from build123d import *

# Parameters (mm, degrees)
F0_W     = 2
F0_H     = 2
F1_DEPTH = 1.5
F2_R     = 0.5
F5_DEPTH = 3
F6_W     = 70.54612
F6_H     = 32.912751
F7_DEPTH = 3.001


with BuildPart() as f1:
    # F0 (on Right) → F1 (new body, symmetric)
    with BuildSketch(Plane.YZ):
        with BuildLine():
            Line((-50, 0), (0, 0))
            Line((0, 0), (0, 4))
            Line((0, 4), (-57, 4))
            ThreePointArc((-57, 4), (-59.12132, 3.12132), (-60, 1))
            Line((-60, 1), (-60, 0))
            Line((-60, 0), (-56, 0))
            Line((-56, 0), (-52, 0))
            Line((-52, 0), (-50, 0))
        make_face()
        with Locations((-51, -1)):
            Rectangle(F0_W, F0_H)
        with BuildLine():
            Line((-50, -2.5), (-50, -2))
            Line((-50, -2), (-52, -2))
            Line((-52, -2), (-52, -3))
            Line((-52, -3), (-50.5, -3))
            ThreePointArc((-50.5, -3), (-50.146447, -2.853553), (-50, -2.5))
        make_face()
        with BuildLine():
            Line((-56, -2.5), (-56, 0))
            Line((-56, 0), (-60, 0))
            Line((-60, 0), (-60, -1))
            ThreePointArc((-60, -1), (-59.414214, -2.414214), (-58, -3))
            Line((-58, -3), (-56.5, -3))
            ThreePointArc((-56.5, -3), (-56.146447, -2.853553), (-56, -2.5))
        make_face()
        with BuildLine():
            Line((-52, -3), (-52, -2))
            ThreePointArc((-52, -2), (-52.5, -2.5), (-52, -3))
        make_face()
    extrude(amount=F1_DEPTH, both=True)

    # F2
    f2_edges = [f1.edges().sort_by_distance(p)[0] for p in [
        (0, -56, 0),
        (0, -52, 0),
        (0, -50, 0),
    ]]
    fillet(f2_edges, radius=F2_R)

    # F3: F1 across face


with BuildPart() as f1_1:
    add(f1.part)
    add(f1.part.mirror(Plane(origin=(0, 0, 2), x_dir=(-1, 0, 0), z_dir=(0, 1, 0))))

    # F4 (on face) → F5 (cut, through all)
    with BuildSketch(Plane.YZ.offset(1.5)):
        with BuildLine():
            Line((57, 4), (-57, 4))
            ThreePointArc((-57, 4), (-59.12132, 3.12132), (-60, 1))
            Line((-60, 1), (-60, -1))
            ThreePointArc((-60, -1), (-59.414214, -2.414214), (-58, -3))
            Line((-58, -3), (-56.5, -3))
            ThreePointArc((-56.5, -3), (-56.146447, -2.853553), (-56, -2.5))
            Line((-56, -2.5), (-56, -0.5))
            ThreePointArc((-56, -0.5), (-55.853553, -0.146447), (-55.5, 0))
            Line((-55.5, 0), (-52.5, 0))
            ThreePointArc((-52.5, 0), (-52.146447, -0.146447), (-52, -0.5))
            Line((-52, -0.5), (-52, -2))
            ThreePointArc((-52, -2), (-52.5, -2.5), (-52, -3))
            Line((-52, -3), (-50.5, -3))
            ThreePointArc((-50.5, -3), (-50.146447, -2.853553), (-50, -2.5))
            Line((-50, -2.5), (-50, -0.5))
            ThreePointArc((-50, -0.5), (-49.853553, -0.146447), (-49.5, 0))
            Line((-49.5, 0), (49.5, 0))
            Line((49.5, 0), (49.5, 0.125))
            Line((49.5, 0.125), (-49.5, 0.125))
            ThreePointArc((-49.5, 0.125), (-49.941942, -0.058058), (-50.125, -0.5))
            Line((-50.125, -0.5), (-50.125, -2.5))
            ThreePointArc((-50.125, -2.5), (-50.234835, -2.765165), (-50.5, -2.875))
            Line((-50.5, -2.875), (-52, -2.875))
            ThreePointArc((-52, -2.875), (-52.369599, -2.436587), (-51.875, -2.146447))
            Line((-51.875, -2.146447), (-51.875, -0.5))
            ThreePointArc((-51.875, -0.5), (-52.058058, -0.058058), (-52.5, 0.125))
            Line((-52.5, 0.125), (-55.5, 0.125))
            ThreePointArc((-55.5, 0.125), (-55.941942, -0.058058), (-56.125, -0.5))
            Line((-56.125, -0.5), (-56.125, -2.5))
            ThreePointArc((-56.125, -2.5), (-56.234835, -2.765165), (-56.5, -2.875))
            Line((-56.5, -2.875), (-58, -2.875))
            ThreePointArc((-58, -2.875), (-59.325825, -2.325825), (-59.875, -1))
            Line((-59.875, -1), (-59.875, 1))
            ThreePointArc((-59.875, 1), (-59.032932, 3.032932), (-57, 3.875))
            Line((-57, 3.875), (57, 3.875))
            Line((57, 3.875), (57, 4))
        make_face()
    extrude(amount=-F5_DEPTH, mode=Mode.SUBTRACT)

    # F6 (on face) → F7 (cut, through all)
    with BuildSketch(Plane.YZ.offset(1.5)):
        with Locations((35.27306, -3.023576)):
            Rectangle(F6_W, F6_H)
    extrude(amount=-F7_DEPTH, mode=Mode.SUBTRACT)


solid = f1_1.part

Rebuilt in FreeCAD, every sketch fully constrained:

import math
import FreeCAD as App
import Part
import Sketcher

V = App.Vector
Q = App.Units.Quantity


def edges_at(feature, points):
    """Names of the edges that pass closest to the given points."""
    edges = feature.Shape.Edges
    near = lambda p: min(range(len(edges)), key=lambda i: edges[i].distToShape(Part.Vertex(*p))[0])
    return sorted({f"Edge{near(p) + 1}" for p in points})

doc = App.newDocument("Part")
body = doc.addObject("PartDesign::Body", "Body")

sketch1 = body.newObject("Sketcher::SketchObject", "Sketch")
sketch1.AttachmentSupport = (doc.getObject("YZ_Plane"), [""])
sketch1.MapMode = "FlatFace"
sketch1.addGeometry(Part.LineSegment(V(0, 0, 0), V(0, 4, 0)), False)
sketch1.addGeometry(Part.LineSegment(V(0, 4, 0), V(-57, 4, 0)), False)
sketch1.addGeometry(Part.ArcOfCircle(Part.Circle(V(-57, 1, 0), V(0, 0, 1), 3), math.radians(90), math.radians(180)), False)
sketch1.addGeometry(Part.LineSegment(V(-60, 1, 0), V(-60, -1, 0)), False)
sketch1.addGeometry(Part.ArcOfCircle(Part.Circle(V(-58, -1, 0), V(0, 0, 1), 2), math.radians(180), math.radians(270)), False)
sketch1.addGeometry(Part.LineSegment(V(-58, -3, 0), V(-56.5, -3, 0)), False)
sketch1.addGeometry(Part.ArcOfCircle(Part.Circle(V(-56.5, -2.5, 0), V(0, 0, 1), 0.5), math.radians(-90), math.radians(0)), False)
sketch1.addGeometry(Part.LineSegment(V(-56, -2.5, 0), V(-56, 0, 0)), False)
sketch1.addGeometry(Part.LineSegment(V(-56, 0, 0), V(-52, 0, 0)), False)
sketch1.addGeometry(Part.LineSegment(V(-52, 0, 0), V(-52, -2, 0)), False)
sketch1.addGeometry(Part.ArcOfCircle(Part.Circle(V(-52, -2.5, 0), V(0, 0, 1), 0.5), math.radians(90), math.radians(270)), False)
sketch1.addGeometry(Part.LineSegment(V(-52, -3, 0), V(-50.5, -3, 0)), False)
sketch1.addGeometry(Part.ArcOfCircle(Part.Circle(V(-50.5, -2.5, 0), V(0, 0, 1), 0.5), math.radians(-90), math.radians(0)), False)
sketch1.addGeometry(Part.LineSegment(V(-50, -2.5, 0), V(-50, 0, 0)), False)
sketch1.addGeometry(Part.LineSegment(V(-50, 0, 0), V(0, 0, 0)), False)
sketch1.addConstraint(Sketcher.Constraint("Coincident", 0, 2, 1, 1))
sketch1.addConstraint(Sketcher.Constraint("Tangent", 1, 2, 2, 1))
sketch1.addConstraint(Sketcher.Constraint("Tangent", 2, 2, 3, 1))
sketch1.addConstraint(Sketcher.Constraint("Tangent", 3, 2, 4, 1))
sketch1.addConstraint(Sketcher.Constraint("Tangent", 4, 2, 5, 1))
sketch1.addConstraint(Sketcher.Constraint("Coincident", 5, 2, 6, 1))
sketch1.addConstraint(Sketcher.Constraint("Coincident", 6, 2, 7, 1))
sketch1.addConstraint(Sketcher.Constraint("Coincident", 7, 2, 8, 1))
sketch1.addConstraint(Sketcher.Constraint("Coincident", 8, 2, 9, 1))
sketch1.addConstraint(Sketcher.Constraint("Coincident", 9, 2, 10, 1))
sketch1.addConstraint(Sketcher.Constraint("Tangent", 10, 2, 11, 1))
sketch1.addConstraint(Sketcher.Constraint("Coincident", 11, 2, 12, 1))
sketch1.addConstraint(Sketcher.Constraint("Coincident", 12, 2, 13, 1))
sketch1.addConstraint(Sketcher.Constraint("Coincident", 13, 2, 14, 1))
sketch1.addConstraint(Sketcher.Constraint("Coincident", 14, 2, 0, 1))
sketch1.addConstraint(Sketcher.Constraint("Vertical", 0))
sketch1.addConstraint(Sketcher.Constraint("Horizontal", 1))
sketch1.addConstraint(Sketcher.Constraint("Vertical", 3))
sketch1.addConstraint(Sketcher.Constraint("Horizontal", 5))
sketch1.addConstraint(Sketcher.Constraint("Vertical", 7))
sketch1.addConstraint(Sketcher.Constraint("Horizontal", 8))
sketch1.addConstraint(Sketcher.Constraint("Vertical", 9))
sketch1.addConstraint(Sketcher.Constraint("Horizontal", 11))
sketch1.addConstraint(Sketcher.Constraint("Vertical", 13))
sketch1.addConstraint(Sketcher.Constraint("Horizontal", 14))
sketch1.addConstraint(Sketcher.Constraint("Coincident", 14, 2, -1, 1))
sketch1.addConstraint(Sketcher.Constraint("Equal", 6, 10))
sketch1.addConstraint(Sketcher.Constraint("Equal", 10, 12))
sketch1.addConstraint(Sketcher.Constraint("PointOnObject", 7, 2, -1))
sketch1.addConstraint(Sketcher.Constraint("Horizontal", 6, 3, 10, 3))
sketch1.addConstraint(Sketcher.Constraint("Horizontal", 12, 3, 6, 2))
sketch1.addConstraint(Sketcher.Constraint("Horizontal", 6, 2, 12, 2))
sketch1.addConstraint(Sketcher.Constraint("Vertical", 6, 3, 5, 2))
sketch1.addConstraint(Sketcher.Constraint("Vertical", 10, 3, 8, 2))
sketch1.addConstraint(Sketcher.Constraint("Vertical", 12, 3, 11, 2))
sketch1.addConstraint(Sketcher.Constraint("Equal", 5, 11))
sketch1.addConstraint(Sketcher.Constraint("Equal", 8, 0))
sketch1.addConstraint(Sketcher.Constraint("Equal", 3, 9))
sketch1.addConstraint(Sketcher.Constraint("Radius", 2, Q("3.000001 mm")))
sketch1.addConstraint(Sketcher.Constraint("Radius", 4, Q("1.999999 mm")))
sketch1.addConstraint(Sketcher.Constraint("Radius", 6, Q("0.500001 mm")))
sketch1.addConstraint(Sketcher.Constraint("DistanceX", 1, 2, 1, 1, Q("57 mm")))
sketch1.addConstraint(Sketcher.Constraint("DistanceX", 14, 1, 14, 2, Q("50 mm")))
sketch1.addConstraint(Sketcher.Constraint("DistanceY", 3, 2, 3, 1, Q("2 mm")))
pad1 = body.newObject("PartDesign::Pad", "Pad")
pad1.Profile = sketch1
pad1.Length = 3
pad1.Midplane = True
doc.recompute()

fillet = body.newObject("PartDesign::Fillet", "Fillet")
fillet.Base = (pad1, edges_at(pad1, [(0, -56, 0), (0, -52, 0), (0, -50, 0)]))
fillet.Radius = 0.5
body2 = doc.addObject("PartDesign::Body", "Body001")
doc.recompute()

body2.BaseFeature = body
doc.recompute()

mirroring = doc.addObject("Part::Mirroring", "Mirroring")
mirroring.Source = body
mirroring.Base = V(0, 0, 2)
mirroring.Normal = V(0, 1, 0)
body3 = doc.addObject("PartDesign::Body", "Body002")
body3.BaseFeature = mirroring
boolean = body2.newObject("PartDesign::Boolean", "Boolean")
boolean.Type = "Fuse"
boolean.addObjects([body3])
doc.recompute()

sketch2 = body2.newObject("Sketcher::SketchObject", "Sketch001")
sketch2.AttachmentSupport = (doc.getObject("YZ_Plane001"), [""])
sketch2.MapMode = "FlatFace"
sketch2.AttachmentOffset = App.Placement(V(0, 0, 1.5), App.Rotation())
sketch2.addGeometry(Part.LineSegment(V(57, 4, 0), V(-57, 4, 0)), False)
sketch2.addGeometry(Part.ArcOfCircle(Part.Circle(V(-57, 1, 0), V(0, 0, 1), 3), math.radians(90), math.radians(180)), False)
sketch2.addGeometry(Part.LineSegment(V(-60, 1, 0), V(-60, -1, 0)), False)
sketch2.addGeometry(Part.ArcOfCircle(Part.Circle(V(-58, -1, 0), V(0, 0, 1), 2), math.radians(180), math.radians(270)), False)
sketch2.addGeometry(Part.LineSegment(V(-58, -3, 0), V(-56.5, -3, 0)), False)
sketch2.addGeometry(Part.ArcOfCircle(Part.Circle(V(-56.5, -2.5, 0), V(0, 0, 1), 0.5), math.radians(-90), math.radians(0)), False)
sketch2.addGeometry(Part.LineSegment(V(-56, -2.5, 0), V(-56, -0.5, 0)), False)
sketch2.addGeometry(Part.ArcOfCircle(Part.Circle(V(-55.5, -0.5, 0), V(0, 0, 1), 0.5), math.radians(90), math.radians(180)), False)
sketch2.addGeometry(Part.LineSegment(V(-55.5, 0, 0), V(-52.5, 0, 0)), False)
sketch2.addGeometry(Part.ArcOfCircle(Part.Circle(V(-52.5, -0.5, 0), V(0, 0, 1), 0.5), math.radians(0), math.radians(90)), False)
sketch2.addGeometry(Part.LineSegment(V(-52, -0.5, 0), V(-52, -2, 0)), False)
sketch2.addGeometry(Part.ArcOfCircle(Part.Circle(V(-52, -2.5, 0), V(0, 0, 1), 0.5), math.radians(90), math.radians(270)), False)
sketch2.addGeometry(Part.LineSegment(V(-52, -3, 0), V(-50.5, -3, 0)), False)
sketch2.addGeometry(Part.ArcOfCircle(Part.Circle(V(-50.5, -2.5, 0), V(0, 0, 1), 0.5), math.radians(-90), math.radians(0)), False)
sketch2.addGeometry(Part.LineSegment(V(-50, -2.5, 0), V(-50, -0.5, 0)), False)
sketch2.addGeometry(Part.ArcOfCircle(Part.Circle(V(-49.5, -0.5, 0), V(0, 0, 1), 0.5), math.radians(90), math.radians(180)), False)
sketch2.addGeometry(Part.LineSegment(V(-49.5, 0, 0), V(49.5, 0, 0)), False)
sketch2.addGeometry(Part.LineSegment(V(49.5, 0, 0), V(49.5, 0.12, 0)), False)
sketch2.addGeometry(Part.LineSegment(V(49.5, 0.12, 0), V(-49.5, 0.12, 0)), False)
sketch2.addGeometry(Part.ArcOfCircle(Part.Circle(V(-49.5, -0.5, 0), V(0, 0, 1), 0.62), math.radians(90), math.radians(180)), False)
sketch2.addGeometry(Part.LineSegment(V(-50.12, -0.5, 0), V(-50.12, -2.5, 0)), False)
sketch2.addGeometry(Part.ArcOfCircle(Part.Circle(V(-50.5, -2.5, 0), V(0, 0, 1), 0.38), math.radians(-90), math.radians(0)), False)
sketch2.addGeometry(Part.LineSegment(V(-50.5, -2.88, 0), V(-52, -2.88, 0)), False)
sketch2.addGeometry(Part.ArcOfCircle(Part.Circle(V(-52, -2.5, 0), V(0, 0, 1), 0.37), math.radians(71), math.radians(270)), False)
sketch2.addGeometry(Part.LineSegment(V(-51.88, -2.15, 0), V(-51.88, -0.5, 0)), False)
sketch2.addGeometry(Part.ArcOfCircle(Part.Circle(V(-52.5, -0.5, 0), V(0, 0, 1), 0.62), math.radians(0), math.radians(90)), False)
sketch2.addGeometry(Part.LineSegment(V(-52.5, 0.12, 0), V(-55.5, 0.12, 0)), False)
sketch2.addGeometry(Part.ArcOfCircle(Part.Circle(V(-55.5, -0.5, 0), V(0, 0, 1), 0.62), math.radians(90), math.radians(180)), False)
sketch2.addGeometry(Part.LineSegment(V(-56.12, -0.5, 0), V(-56.12, -2.5, 0)), False)
sketch2.addGeometry(Part.ArcOfCircle(Part.Circle(V(-56.5, -2.5, 0), V(0, 0, 1), 0.38), math.radians(-90), math.radians(0)), False)
sketch2.addGeometry(Part.LineSegment(V(-56.5, -2.88, 0), V(-58, -2.88, 0)), False)
sketch2.addGeometry(Part.ArcOfCircle(Part.Circle(V(-58, -1, 0), V(0, 0, 1), 1.88), math.radians(-180), math.radians(-90)), False)
sketch2.addGeometry(Part.LineSegment(V(-59.88, -1, 0), V(-59.88, 1, 0)), False)
sketch2.addGeometry(Part.ArcOfCircle(Part.Circle(V(-57, 1, 0), V(0, 0, 1), 2.87), math.radians(90), math.radians(180)), False)
sketch2.addGeometry(Part.LineSegment(V(-57, 3.88, 0), V(57, 3.88, 0)), False)
sketch2.addGeometry(Part.LineSegment(V(57, 3.88, 0), V(57, 4, 0)), False)
sketch2.addConstraint(Sketcher.Constraint("Tangent", 0, 2, 1, 1))
sketch2.addConstraint(Sketcher.Constraint("Tangent", 1, 2, 2, 1))
sketch2.addConstraint(Sketcher.Constraint("Tangent", 2, 2, 3, 1))
sketch2.addConstraint(Sketcher.Constraint("Tangent", 3, 2, 4, 1))
sketch2.addConstraint(Sketcher.Constraint("Coincident", 4, 2, 5, 1))
sketch2.addConstraint(Sketcher.Constraint("Coincident", 5, 2, 6, 1))
sketch2.addConstraint(Sketcher.Constraint("Coincident", 6, 2, 7, 2))
sketch2.addConstraint(Sketcher.Constraint("Coincident", 7, 1, 8, 1))
sketch2.addConstraint(Sketcher.Constraint("Coincident", 8, 2, 9, 2))
sketch2.addConstraint(Sketcher.Constraint("Coincident", 9, 1, 10, 1))
sketch2.addConstraint(Sketcher.Constraint("Coincident", 10, 2, 11, 1))
sketch2.addConstraint(Sketcher.Constraint("Tangent", 11, 2, 12, 1))
sketch2.addConstraint(Sketcher.Constraint("Coincident", 12, 2, 13, 1))
sketch2.addConstraint(Sketcher.Constraint("Coincident", 13, 2, 14, 1))
sketch2.addConstraint(Sketcher.Constraint("Coincident", 14, 2, 15, 2))
sketch2.addConstraint(Sketcher.Constraint("Coincident", 15, 1, 16, 1))
sketch2.addConstraint(Sketcher.Constraint("Coincident", 16, 2, 17, 1))
sketch2.addConstraint(Sketcher.Constraint("Coincident", 17, 2, 18, 1))
sketch2.addConstraint(Sketcher.Constraint("Tangent", 18, 2, 19, 1))
sketch2.addConstraint(Sketcher.Constraint("Tangent", 19, 2, 20, 1))
sketch2.addConstraint(Sketcher.Constraint("Tangent", 20, 2, 21, 2))
sketch2.addConstraint(Sketcher.Constraint("Tangent", 21, 1, 22, 1))
sketch2.addConstraint(Sketcher.Constraint("Tangent", 22, 2, 23, 2))
sketch2.addConstraint(Sketcher.Constraint("Coincident", 23, 1, 24, 1))
sketch2.addConstraint(Sketcher.Constraint("Tangent", 24, 2, 25, 1))
sketch2.addConstraint(Sketcher.Constraint("Tangent", 25, 2, 26, 1))
sketch2.addConstraint(Sketcher.Constraint("Tangent", 26, 2, 27, 1))
sketch2.addConstraint(Sketcher.Constraint("Tangent", 27, 2, 28, 1))
sketch2.addConstraint(Sketcher.Constraint("Tangent", 28, 2, 29, 2))
sketch2.addConstraint(Sketcher.Constraint("Tangent", 29, 1, 30, 1))
sketch2.addConstraint(Sketcher.Constraint("Tangent", 30, 2, 31, 2))
sketch2.addConstraint(Sketcher.Constraint("Tangent", 31, 1, 32, 1))
sketch2.addConstraint(Sketcher.Constraint("Tangent", 32, 2, 33, 2))
sketch2.addConstraint(Sketcher.Constraint("Tangent", 33, 1, 34, 1))
sketch2.addConstraint(Sketcher.Constraint("Coincident", 34, 2, 35, 1))
sketch2.addConstraint(Sketcher.Constraint("Coincident", 35, 2, 0, 1))
sketch2.addConstraint(Sketcher.Constraint("Horizontal", 0))
sketch2.addConstraint(Sketcher.Constraint("Vertical", 2))
sketch2.addConstraint(Sketcher.Constraint("Horizontal", 4))
sketch2.addConstraint(Sketcher.Constraint("Vertical", 6))
sketch2.addConstraint(Sketcher.Constraint("Horizontal", 8))
sketch2.addConstraint(Sketcher.Constraint("Vertical", 10))
sketch2.addConstraint(Sketcher.Constraint("Horizontal", 12))
sketch2.addConstraint(Sketcher.Constraint("Vertical", 14))
sketch2.addConstraint(Sketcher.Constraint("Horizontal", 16))
sketch2.addConstraint(Sketcher.Constraint("Vertical", 17))
sketch2.addConstraint(Sketcher.Constraint("Horizontal", 18))
sketch2.addConstraint(Sketcher.Constraint("Vertical", 20))
sketch2.addConstraint(Sketcher.Constraint("Horizontal", 22))
sketch2.addConstraint(Sketcher.Constraint("Vertical", 24))
sketch2.addConstraint(Sketcher.Constraint("Horizontal", 26))
sketch2.addConstraint(Sketcher.Constraint("Vertical", 28))
sketch2.addConstraint(Sketcher.Constraint("Horizontal", 30))
sketch2.addConstraint(Sketcher.Constraint("Vertical", 32))
sketch2.addConstraint(Sketcher.Constraint("Horizontal", 34))
sketch2.addConstraint(Sketcher.Constraint("Vertical", 35))
sketch2.addConstraint(Sketcher.Constraint("Coincident", 19, 3, 15, 3))
sketch2.addConstraint(Sketcher.Constraint("Coincident", 21, 3, 13, 3))
sketch2.addConstraint(Sketcher.Constraint("Coincident", 23, 3, 11, 3))
sketch2.addConstraint(Sketcher.Constraint("Coincident", 25, 3, 9, 3))
sketch2.addConstraint(Sketcher.Constraint("Coincident", 27, 3, 7, 3))
sketch2.addConstraint(Sketcher.Constraint("Coincident", 29, 3, 5, 3))
sketch2.addConstraint(Sketcher.Constraint("Coincident", 31, 3, 3, 3))
sketch2.addConstraint(Sketcher.Constraint("Coincident", 33, 3, 1, 3))
sketch2.addConstraint(Sketcher.Constraint("Equal", 5, 7))
sketch2.addConstraint(Sketcher.Constraint("Equal", 7, 9))
sketch2.addConstraint(Sketcher.Constraint("Equal", 9, 11))
sketch2.addConstraint(Sketcher.Constraint("Equal", 11, 13))
sketch2.addConstraint(Sketcher.Constraint("Equal", 13, 15))
sketch2.addConstraint(Sketcher.Constraint("Equal", 19, 25))
sketch2.addConstraint(Sketcher.Constraint("Symmetric", 15, 1, 16, 2, -1, 1))
sketch2.addConstraint(Sketcher.Constraint("PointOnObject", 7, 1, -1))
sketch2.addConstraint(Sketcher.Constraint("Horizontal", 5, 3, 11, 3))
sketch2.addConstraint(Sketcher.Constraint("Horizontal", 29, 3, 5, 2))
sketch2.addConstraint(Sketcher.Constraint("Horizontal", 27, 3, 6, 2))
sketch2.addConstraint(Sketcher.Constraint("Horizontal", 6, 2, 9, 1))
sketch2.addConstraint(Sketcher.Constraint("Horizontal", 5, 2, 13, 2))
sketch2.addConstraint(Sketcher.Constraint("Horizontal", 9, 1, 14, 2))
sketch2.addConstraint(Sketcher.Constraint("Vertical", 29, 3, 4, 2))
sketch2.addConstraint(Sketcher.Constraint("Vertical", 27, 3, 7, 1))
sketch2.addConstraint(Sketcher.Constraint("Vertical", 25, 3, 8, 2))
sketch2.addConstraint(Sketcher.Constraint("Vertical", 23, 3, 9, 1))
sketch2.addConstraint(Sketcher.Constraint("Vertical", 21, 3, 12, 2))
sketch2.addConstraint(Sketcher.Constraint("Vertical", 19, 3, 15, 1))
sketch2.addConstraint(Sketcher.Constraint("Equal", 4, 12))
sketch2.addConstraint(Sketcher.Constraint("Equal", 2, 6))
sketch2.addConstraint(Sketcher.Constraint("Equal", 30, 10))
sketch2.addConstraint(Sketcher.Constraint("Radius", 1, Q("3.000001 mm")))
sketch2.addConstraint(Sketcher.Constraint("Radius", 3, Q("1.999999 mm")))
sketch2.addConstraint(Sketcher.Constraint("Radius", 5, Q("0.500001 mm")))
sketch2.addConstraint(Sketcher.Constraint("DistanceX", 0, 2, 0, 1, Q("114 mm")))
sketch2.addConstraint(Sketcher.Constraint("DistanceX", 8, 1, 8, 2, Q("3 mm")))
sketch2.addConstraint(Sketcher.Constraint("DistanceX", 16, 1, 16, 2, Q("99 mm")))
sketch2.addConstraint(Sketcher.Constraint("DistanceY", 2, 2, 2, 1, Q("2 mm")))
sketch2.addConstraint(Sketcher.Constraint("Radius", 19, Q("0.624999 mm")))
pocket1 = body2.newObject("PartDesign::Pocket", "Pocket")
pocket1.Profile = sketch2
pocket1.Type = "ThroughAll"

sketch3 = body2.newObject("Sketcher::SketchObject", "Sketch002")
sketch3.AttachmentSupport = (doc.getObject("YZ_Plane001"), [""])
sketch3.MapMode = "FlatFace"
sketch3.AttachmentOffset = App.Placement(V(0, 0, 1.5), App.Rotation())
sketch3.addGeometry(Part.LineSegment(V(0, 13, 0), V(0, -19, 0)), False)
sketch3.addGeometry(Part.LineSegment(V(0, -19, 0), V(71, -19, 0)), False)
sketch3.addGeometry(Part.LineSegment(V(71, -19, 0), V(71, 13, 0)), False)
sketch3.addGeometry(Part.LineSegment(V(71, 13, 0), V(0, 13, 0)), False)
sketch3.addConstraint(Sketcher.Constraint("Coincident", 0, 2, 1, 1))
sketch3.addConstraint(Sketcher.Constraint("Coincident", 1, 2, 2, 1))
sketch3.addConstraint(Sketcher.Constraint("Coincident", 2, 2, 3, 1))
sketch3.addConstraint(Sketcher.Constraint("Coincident", 3, 2, 0, 1))
sketch3.addConstraint(Sketcher.Constraint("Vertical", 0))
sketch3.addConstraint(Sketcher.Constraint("Horizontal", 1))
sketch3.addConstraint(Sketcher.Constraint("Vertical", 2))
sketch3.addConstraint(Sketcher.Constraint("Horizontal", 3))
sketch3.addConstraint(Sketcher.Constraint("PointOnObject", 0, 2, -2))
sketch3.addConstraint(Sketcher.Constraint("DistanceX", 1, 1, 1, 2, Q("70.54612 mm")))
sketch3.addConstraint(Sketcher.Constraint("DistanceY", 0, 2, 0, 1, Q("32.912751 mm")))
sketch3.addConstraint(Sketcher.Constraint("DistanceY", -1, 1, 2, 2, Q("13.432799 mm")))
pocket2 = body2.newObject("PartDesign::Pocket", "Pocket001")
pocket2.Profile = sketch3
pocket2.Type = "ThroughAll"
mirroring.Visibility = False

doc.recompute()
